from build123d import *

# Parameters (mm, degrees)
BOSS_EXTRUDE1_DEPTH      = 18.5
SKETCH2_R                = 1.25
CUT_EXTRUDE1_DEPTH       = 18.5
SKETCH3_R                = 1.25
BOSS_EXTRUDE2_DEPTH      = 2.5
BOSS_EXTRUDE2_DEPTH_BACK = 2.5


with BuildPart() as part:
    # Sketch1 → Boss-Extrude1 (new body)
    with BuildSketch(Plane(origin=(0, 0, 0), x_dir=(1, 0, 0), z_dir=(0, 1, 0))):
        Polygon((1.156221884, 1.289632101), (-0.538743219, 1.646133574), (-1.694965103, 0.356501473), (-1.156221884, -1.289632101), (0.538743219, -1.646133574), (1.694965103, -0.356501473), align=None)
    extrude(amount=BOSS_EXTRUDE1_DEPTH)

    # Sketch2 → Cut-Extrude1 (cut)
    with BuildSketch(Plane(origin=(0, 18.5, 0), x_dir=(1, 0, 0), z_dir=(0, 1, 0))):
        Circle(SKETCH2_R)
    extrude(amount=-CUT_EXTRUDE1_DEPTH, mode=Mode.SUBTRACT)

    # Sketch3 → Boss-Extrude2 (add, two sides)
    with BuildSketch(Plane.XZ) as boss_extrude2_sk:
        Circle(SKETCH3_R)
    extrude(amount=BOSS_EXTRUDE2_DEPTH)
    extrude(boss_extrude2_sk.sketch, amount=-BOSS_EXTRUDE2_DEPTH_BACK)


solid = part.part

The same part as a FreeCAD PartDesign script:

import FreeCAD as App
import Part
import Sketcher
from FreeCAD import Vector

doc = App.newDocument("Part")
body = doc.addObject("PartDesign::Body", "Body")

sketch1 = doc.addObject("Sketcher::SketchObject", "Sketch")
body.addObject(sketch1)
sketch1.AttachmentSupport = (doc.XZ_Plane, [""])
sketch1.MapMode = "FlatFace"
sketch1.addGeometry([
    Part.LineSegment(Vector(1.2, -1.3, 0), Vector(-0.5, -1.6, 0)),
    Part.LineSegment(Vector(-0.5, -1.6, 0), Vector(-1.7, -0.4, 0)),
    Part.LineSegment(Vector(-1.7, -0.4, 0), Vector(-1.2, 1.3, 0)),
    Part.LineSegment(Vector(-1.2, 1.3, 0), Vector(0.5, 1.6, 0)),
    Part.LineSegment(Vector(0.5, 1.6, 0), Vector(1.7, 0.4, 0)),
    Part.LineSegment(Vector(1.7, 0.4, 0), Vector(1.2, -1.3, 0)),
], False)
sketch1.addConstraint([
    Sketcher.Constraint("Coincident", 0, 2, 1, 1),
    Sketcher.Constraint("Coincident", 1, 2, 2, 1),
    Sketcher.Constraint("Coincident", 2, 2, 3, 1),
    Sketcher.Constraint("Coincident", 3, 2, 4, 1),
    Sketcher.Constraint("Coincident", 4, 2, 5, 1),
    Sketcher.Constraint("Coincident", 5, 2, 0, 1),
    Sketcher.Constraint("Symmetric", 0, 2, 3, 2, -1, 1),
    Sketcher.Constraint("Symmetric", 1, 2, 4, 2, -1, 1),
    Sketcher.Constraint("Symmetric", 2, 2, 5, 2, -1, 1),
    Sketcher.Constraint("Equal", 0, 1),
    Sketcher.Constraint("Equal", 1, 2),
    Sketcher.Constraint("DistanceY", 1, 2, -1, 1, 0.356501),
    Sketcher.Constraint("DistanceY", 2, 2, 3, 2, 0.356501),
    Sketcher.Constraint("Distance", 0, 1.732051),
    Sketcher.Constraint("DistanceX", 2, 2, -1, 1, 1.156222),
])
pad1 = doc.addObject("PartDesign::Pad", "Pad")
body.addObject(pad1)
pad1.Profile = sketch1
pad1.Length = 18.5
pad1.Reversed = True

sketch2 = doc.addObject("Sketcher::SketchObject", "Sketch001")
body.addObject(sketch2)
sketch2.AttachmentSupport = (doc.XZ_Plane, [""])
sketch2.MapMode = "FlatFace"
sketch2.AttachmentOffset = App.Placement(Vector(0, 0, -18.5), App.Rotation())
sketch2.addGeometry(Part.Circle(Vector(0, 0, 0), Vector(0, 0, 1), 1.2), False)
sketch2.addConstraint([
    Sketcher.Constraint("Coincident", 0, 3, -1, 1),
    Sketcher.Constraint("Diameter", 0, 2.5),
])
pocket1 = doc.addObject("PartDesign::Pocket", "Pocket")
body.addObject(pocket1)
pocket1.Profile = sketch2
pocket1.Length = 18.5
pocket1.Reversed = True

sketch3 = doc.addObject("Sketcher::SketchObject", "Sketch002")
body.addObject(sketch3)
sketch3.AttachmentSupport = (doc.XZ_Plane, [""])
sketch3.MapMode = "FlatFace"
sketch3.addGeometry(Part.Circle(Vector(0, 0, 0), Vector(0, 0, 1), 1.2), False)
sketch3.addConstraint([
    Sketcher.Constraint("Coincident", 0, 3, -1, 1),
    Sketcher.Constraint("Diameter", 0, 2.5),
])
pad2 = doc.addObject("PartDesign::Pad", "Pad001")
body.addObject(pad2)
pad2.Profile = sketch3
pad2.Type = "TwoLengths"
pad2.Length = 2.5
pad2.Length2 = 2.5

doc.recompute()
